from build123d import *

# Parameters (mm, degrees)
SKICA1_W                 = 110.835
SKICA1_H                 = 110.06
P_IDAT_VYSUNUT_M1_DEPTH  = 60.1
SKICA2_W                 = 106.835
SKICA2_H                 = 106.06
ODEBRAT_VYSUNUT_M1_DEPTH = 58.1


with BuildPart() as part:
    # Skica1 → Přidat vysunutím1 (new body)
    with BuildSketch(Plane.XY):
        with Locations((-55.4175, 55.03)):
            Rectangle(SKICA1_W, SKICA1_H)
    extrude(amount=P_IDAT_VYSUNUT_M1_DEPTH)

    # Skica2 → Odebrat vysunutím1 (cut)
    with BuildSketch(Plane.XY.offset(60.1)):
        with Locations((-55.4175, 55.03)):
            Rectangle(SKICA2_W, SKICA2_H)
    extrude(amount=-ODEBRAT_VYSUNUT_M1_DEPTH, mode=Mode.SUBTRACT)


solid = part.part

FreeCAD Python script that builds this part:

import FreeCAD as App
import Part
import Sketcher
Q = App.Units.Quantity


def add_polygon(sketch, points):
    """Adds a closed chain of lines whose ends are joined by coincident constraints."""
    first, n = sketch.GeometryCount, len(points)
    for a, b in zip(points, points[1:] + points[:1]):
        sketch.addGeometry(Part.LineSegment(App.Vector(*a, 0), App.Vector(*b, 0)), False)
    for i in range(n):
        sketch.addConstraint(Sketcher.Constraint("Coincident", first + i, 2, first + (i + 1) % n, 1))

doc = App.newDocument("Part")
body = doc.addObject("PartDesign::Body", "Body")

# Sketch on XY plane
sketch1 = body.newObject("Sketcher::SketchObject", "Sketch")
sketch1.AttachmentSupport = (doc.getObject("XY_Plane"), [""])
sketch1.MapMode = "FlatFace"
add_polygon(sketch1, [(-110.835, 110.06), (-110.835, 0), (0, 0), (0, 110.06)])  # lines 0-3
sketch1.addConstraint([
    Sketcher.Constraint("Vertical", 0),
    Sketcher.Constraint("Horizontal", 1),
    Sketcher.Constraint("Vertical", 2),
    Sketcher.Constraint("Horizontal", 3),
    Sketcher.Constraint("Coincident", 1, 2, -1, 1),
    Sketcher.Constraint("DistanceY", 0, 2, 0, 1, Q("110.06 mm")),
    Sketcher.Constraint("DistanceX", 1, 1, 1, 2, Q("110.835 mm")),
])
pad1 = body.newObject("PartDesign::Pad", "Pad")
pad1.Profile = sketch1
pad1.Length = 60.1

# Sketch on XY plane
sketch2 = body.newObject("Sketcher::SketchObject", "Sketch001")
sketch2.AttachmentSupport = (doc.getObject("XY_Plane"), [""])
sketch2.MapMode = "FlatFace"
sketch2.AttachmentOffset = App.Placement(App.Vector(0, 0, 60.1), App.Rotation())
add_polygon(sketch2, [(-108.835, 108.06), (-108.835, 2), (-2, 2), (-2, 108.06)])  # lines 0-3
sketch2.addConstraint([
    Sketcher.Constraint("Vertical", 0),
    Sketcher.Constraint("Horizontal", 1),
    Sketcher.Constraint("Vertical", 2),
    Sketcher.Constraint("Horizontal", 3),
    Sketcher.Constraint("DistanceY", -1, 1, 0, 2, Q("2 mm")),
    Sketcher.Constraint("DistanceX", 1, 2, -1, 1, Q("2 mm")),
    Sketcher.Constraint("DistanceY", 0, 2, 0, 1, Q("106.06 mm")),
    Sketcher.Constraint("DistanceX", 1, 1, 1, 2, Q("106.835 mm")),
])
pocket1 = body.newObject("PartDesign::Pocket", "Pocket")
pocket1.Profile = sketch2
pocket1.Length = 58.1

doc.recompute()
